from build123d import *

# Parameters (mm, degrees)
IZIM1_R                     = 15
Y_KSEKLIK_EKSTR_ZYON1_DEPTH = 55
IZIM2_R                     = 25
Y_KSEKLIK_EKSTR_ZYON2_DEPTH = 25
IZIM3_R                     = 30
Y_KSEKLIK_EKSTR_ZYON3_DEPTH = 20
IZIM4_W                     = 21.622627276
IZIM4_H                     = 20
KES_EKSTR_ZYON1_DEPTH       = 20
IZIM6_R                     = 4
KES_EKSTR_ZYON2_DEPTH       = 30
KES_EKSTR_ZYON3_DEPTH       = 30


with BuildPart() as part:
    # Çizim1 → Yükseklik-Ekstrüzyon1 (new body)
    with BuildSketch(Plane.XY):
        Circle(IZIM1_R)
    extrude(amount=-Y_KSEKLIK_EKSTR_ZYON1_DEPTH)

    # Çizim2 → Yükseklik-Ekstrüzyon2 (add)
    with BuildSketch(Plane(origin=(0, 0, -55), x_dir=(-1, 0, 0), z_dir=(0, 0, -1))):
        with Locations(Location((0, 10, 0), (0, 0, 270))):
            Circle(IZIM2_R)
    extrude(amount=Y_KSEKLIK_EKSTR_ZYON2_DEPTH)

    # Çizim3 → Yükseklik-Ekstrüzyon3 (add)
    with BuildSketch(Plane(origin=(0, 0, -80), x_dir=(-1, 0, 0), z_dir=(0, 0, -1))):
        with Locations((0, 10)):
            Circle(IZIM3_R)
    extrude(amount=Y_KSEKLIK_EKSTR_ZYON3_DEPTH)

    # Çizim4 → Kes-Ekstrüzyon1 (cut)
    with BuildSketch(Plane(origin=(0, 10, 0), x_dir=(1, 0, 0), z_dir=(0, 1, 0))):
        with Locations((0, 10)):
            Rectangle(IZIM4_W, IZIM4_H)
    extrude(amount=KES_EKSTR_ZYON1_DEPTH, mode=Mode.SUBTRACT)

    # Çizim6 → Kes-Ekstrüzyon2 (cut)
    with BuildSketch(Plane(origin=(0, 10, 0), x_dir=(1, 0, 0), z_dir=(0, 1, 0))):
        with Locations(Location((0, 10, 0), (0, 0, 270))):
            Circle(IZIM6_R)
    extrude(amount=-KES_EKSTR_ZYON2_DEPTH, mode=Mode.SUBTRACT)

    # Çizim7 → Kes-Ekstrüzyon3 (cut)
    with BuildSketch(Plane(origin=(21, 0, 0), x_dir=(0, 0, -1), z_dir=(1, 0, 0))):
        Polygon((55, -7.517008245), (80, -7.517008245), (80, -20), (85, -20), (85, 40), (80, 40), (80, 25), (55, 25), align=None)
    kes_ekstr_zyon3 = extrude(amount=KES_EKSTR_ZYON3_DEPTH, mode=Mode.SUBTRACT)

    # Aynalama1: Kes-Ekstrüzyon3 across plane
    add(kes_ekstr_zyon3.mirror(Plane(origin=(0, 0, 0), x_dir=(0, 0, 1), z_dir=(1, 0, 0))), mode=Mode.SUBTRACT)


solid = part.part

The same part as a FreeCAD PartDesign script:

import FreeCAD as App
import Part
import Sketcher

V = App.Vector

doc = App.newDocument("Part")
body = doc.addObject("PartDesign::Body", "Body")

# Sketch on XY plane
sketch1 = body.newObject("Sketcher::SketchObject", "Sketch")
sketch1.AttachmentSupport = (doc.getObject("XY_Plane"), [""])
sketch1.MapMode = "FlatFace"
sketch1.addGeometry(Part.Circle(V(0, 0, 0), V(0, 0, 1), 15), False)
sketch1.addConstraint(Sketcher.Constraint("Coincident", 0, 3, -1, 1))
sketch1.addConstraint(Sketcher.Constraint("Diameter", 0, 30.0))
pad1 = body.newObject("PartDesign::Pad", "Pad")
pad1.Profile = sketch1
pad1.Length = 55
pad1.Reversed = True

# Sketch on XY plane
sketch2 = body.newObject("Sketcher::SketchObject", "Sketch001")
sketch2.AttachmentSupport = (doc.getObject("XY_Plane"), [""])
sketch2.MapMode = "FlatFace"
sketch2.AttachmentOffset = App.Placement(V(0, 0, -55), App.Rotation())
sketch2.addGeometry(Part.Circle(V(0, 10, 0), V(0, 0, 1), 25), False)
sketch2.addConstraint(Sketcher.Constraint("PointOnObject", 0, 3, -2))
sketch2.addConstraint(Sketcher.Constraint("Diameter", 0, 50.0))
sketch2.addConstraint(Sketcher.Constraint("DistanceY", -1, 1, 0, 3, 10.0))
pad2 = body.newObject("PartDesign::Pad", "Pad001")
pad2.Profile = sketch2
pad2.Length = 25
pad2.Reversed = True

# Sketch on XY plane
sketch3 = body.newObject("Sketcher::SketchObject", "Sketch002")
sketch3.AttachmentSupport = (doc.getObject("XY_Plane"), [""])
sketch3.MapMode = "FlatFace"
sketch3.AttachmentOffset = App.Placement(V(0, 0, -80), App.Rotation())
sketch3.addGeometry(Part.Circle(V(0, 10, 0), V(0, 0, 1), 30), False)
sketch3.addConstraint(Sketcher.Constraint("PointOnObject", 0, 3, -2))
sketch3.addConstraint(Sketcher.Constraint("Diameter", 0, 60.0))
sketch3.addConstraint(Sketcher.Constraint("DistanceY", -1, 1, 0, 3, 10.0))
pad3 = body.newObject("PartDesign::Pad", "Pad002")
pad3.Profile = sketch3
pad3.Length = 20
pad3.Reversed = True

# Sketch on XZ plane
sketch4 = body.newObject("Sketcher::SketchObject", "Sketch003")
sketch4.AttachmentSupport = (doc.getObject("XZ_Plane"), [""])
sketch4.MapMode = "FlatFace"
sketch4.AttachmentOffset = App.Placement(V(0, 0, -10), App.Rotation())
sketch4.addGeometry(Part.LineSegment(V(-11, -20, 0), V(-11, 0, 0)), False)
sketch4.addGeometry(Part.LineSegment(V(-11, 0, 0), V(11, 0, 0)), False)
sketch4.addGeometry(Part.LineSegment(V(11, 0, 0), V(11, -20, 0)), False)
sketch4.addGeometry(Part.LineSegment(V(11, -20, 0), V(-11, -20, 0)), False)
sketch4.addConstraint(Sketcher.Constraint("Coincident", 0, 2, 1, 1))
sketch4.addConstraint(Sketcher.Constraint("Coincident", 1, 2, 2, 1))
sketch4.addConstraint(Sketcher.Constraint("Coincident", 2, 2, 3, 1))
sketch4.addConstraint(Sketcher.Constraint("Coincident", 3, 2, 0, 1))
sketch4.addConstraint(Sketcher.Constraint("Vertical", 0))
sketch4.addConstraint(Sketcher.Constraint("Horizontal", 1))
sketch4.addConstraint(Sketcher.Constraint("Vertical", 2))
sketch4.addConstraint(Sketcher.Constraint("Horizontal", 3))
sketch4.addConstraint(Sketcher.Constraint("Symmetric", 0, 2, 1, 2, -1, 1))
sketch4.addConstraint(Sketcher.Constraint("DistanceY", 0, 1, 0, 2, 20.0))
sketch4.addConstraint(Sketcher.Constraint("DistanceX", 1, 1, 1, 2, 21.622627))
pocket1 = body.newObject("PartDesign::Pocket", "Pocket")
pocket1.Profile = sketch4
pocket1.Length = 20

# Sketch on XZ plane
sketch5 = body.newObject("Sketcher::SketchObject", "Sketch004")
sketch5.AttachmentSupport = (doc.getObject("XZ_Plane"), [""])
sketch5.MapMode = "FlatFace"
sketch5.AttachmentOffset = App.Placement(V(0, 0, -10), App.Rotation())
sketch5.addGeometry(Part.Circle(V(0, -10, 0), V(0, 0, 1), 4), False)
sketch5.addConstraint(Sketcher.Constraint("PointOnObject", 0, 3, -2))
sketch5.addConstraint(Sketcher.Constraint("Diameter", 0, 8.0))
sketch5.addConstraint(Sketcher.Constraint("DistanceY", 0, 3, -1, 1, 10.0))
pocket2 = body.newObject("PartDesign::Pocket", "Pocket001")
pocket2.Profile = sketch5
pocket2.Length = 30
pocket2.Reversed = True

# Sketch on YZ plane
sketch6 = body.newObject("Sketcher::SketchObject", "Sketch005")
sketch6.AttachmentSupport = (doc.getObject("YZ_Plane"), [""])
sketch6.MapMode = "FlatFace"
sketch6.AttachmentOffset = App.Placement(V(0, 0, 21), App.Rotation())
sketch6.addGeometry(Part.LineSegment(V(-8, -55, 0), V(-8, -80, 0)), False)
sketch6.addGeometry(Part.LineSegment(V(-8, -80, 0), V(-20, -80, 0)), False)
sketch6.addGeometry(Part.LineSegment(V(-20, -80, 0), V(-20, -85, 0)), False)
sketch6.addGeometry(Part.LineSegment(V(-20, -85, 0), V(40, -85, 0)), False)
sketch6.addGeometry(Part.LineSegment(V(40, -85, 0), V(40, -80, 0)), False)
sketch6.addGeometry(Part.LineSegment(V(40, -80, 0), V(25, -80, 0)), False)
sketch6.addGeometry(Part.LineSegment(V(25, -80, 0), V(25, -55, 0)), False)
sketch6.addGeometry(Part.LineSegment(V(25, -55, 0), V(-8, -55, 0)), False)
sketch6.addConstraint(Sketcher.Constraint("Coincident", 0, 2, 1, 1))
sketch6.addConstraint(Sketcher.Constraint("Coincident", 1, 2, 2, 1))
sketch6.addConstraint(Sketcher.Constraint("Coincident", 2, 2, 3, 1))
sketch6.addConstraint(Sketcher.Constraint("Coincident", 3, 2, 4, 1))
sketch6.addConstraint(Sketcher.Constraint("Coincident", 4, 2, 5, 1))
sketch6.addConstraint(Sketcher.Constraint("Coincident", 5, 2, 6, 1))
sketch6.addConstraint(Sketcher.Constraint("Coincident", 6, 2, 7, 1))
sketch6.addConstraint(Sketcher.Constraint("Coincident", 7, 2, 0, 1))
sketch6.addConstraint(Sketcher.Constraint("Vertical", 0))
sketch6.addConstraint(Sketcher.Constraint("Horizontal", 1))
sketch6.addConstraint(Sketcher.Constraint("Vertical", 2))
sketch6.addConstraint(Sketcher.Constraint("Horizontal", 3))
sketch6.addConstraint(Sketcher.Constraint("Vertical", 4))
sketch6.addConstraint(Sketcher.Constraint("Horizontal", 5))
sketch6.addConstraint(Sketcher.Constraint("Vertical", 6))
sketch6.addConstraint(Sketcher.Constraint("Horizontal", 7))
sketch6.addConstraint(Sketcher.Constraint("Horizontal", 1, 2, 4, 2))
sketch6.addConstraint(Sketcher.Constraint("DistanceX", 3, 1, 3, 2, 60.0))
sketch6.addConstraint(Sketcher.Constraint("DistanceX", 5, 2, 5, 1, 15.0))
sketch6.addConstraint(Sketcher.Constraint("DistanceY", 0, 2, 0, 1, 25.0))
sketch6.addConstraint(Sketcher.Constraint("DistanceY", 2, 2, 2, 1, 5.0))
sketch6.addConstraint(Sketcher.Constraint("DistanceY", 0, 2, -1, 1, 80.0))
sketch6.addConstraint(Sketcher.Constraint("DistanceX", 1, 2, -1, 1, 20.0))
sketch6.addConstraint(Sketcher.Constraint("DistanceX", 1, 2, 1, 1, 12.482992))
pocket3 = body.newObject("PartDesign::Pocket", "Pocket002")
pocket3.Profile = sketch6
pocket3.Length = 30
pocket3.Reversed = True
doc.recompute()

mirrored = body.newObject("PartDesign::Mirrored", "Mirrored")
mirrored.Originals = [pocket3]
mirrored.MirrorPlane = (doc.getObject("YZ_Plane"), [""])
body.Tip = mirrored

doc.recompute()
